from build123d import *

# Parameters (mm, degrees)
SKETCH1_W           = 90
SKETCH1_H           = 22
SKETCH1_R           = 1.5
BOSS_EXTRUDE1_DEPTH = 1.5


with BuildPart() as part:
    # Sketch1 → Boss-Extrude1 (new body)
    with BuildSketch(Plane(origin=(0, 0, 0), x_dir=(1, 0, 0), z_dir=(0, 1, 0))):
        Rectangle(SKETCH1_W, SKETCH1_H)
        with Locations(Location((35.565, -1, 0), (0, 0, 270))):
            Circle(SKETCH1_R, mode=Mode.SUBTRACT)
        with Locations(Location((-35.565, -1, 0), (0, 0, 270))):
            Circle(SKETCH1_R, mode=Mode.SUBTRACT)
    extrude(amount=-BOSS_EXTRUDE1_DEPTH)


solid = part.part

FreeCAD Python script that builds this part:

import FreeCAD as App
import Part
import Sketcher


def add_polygon(sketch, points):
    """Adds a closed chain of lines whose ends are joined by coincident constraints."""
    first, n = sketch.GeometryCount, len(points)
    for a, b in zip(points, points[1:] + points[:1]):
        sketch.addGeometry(Part.LineSegment(App.Vector(*a, 0), App.Vector(*b, 0)), False)
    for i in range(n):
        sketch.addConstraint(Sketcher.Constraint("Coincident", first + i, 2, first + (i + 1) % n, 1))

doc = App.newDocument("Part")
body = doc.addObject("PartDesign::Body", "Body")

sketch1 = body.newObject("Sketcher::SketchObject", "Sketch")
sketch1.AttachmentSupport = (doc.getObject("XZ_Plane"), [""])
sketch1.MapMode = "FlatFace"
add_polygon(sketch1, [(-45, -11), (-45, 11), (45, 11), (45, -11)])
sketch1.addGeometry(Part.Circle(App.Vector(-35.6, 1, 0), App.Vector(0, 0, 1), 1.5), False)
sketch1.addGeometry(Part.Circle(App.Vector(35.6, 1, 0), App.Vector(0, 0, 1), 1.5), False)
sketch1.addConstraint(Sketcher.Constraint("Vertical", 0))
sketch1.addConstraint(Sketcher.Constraint("Horizontal", 1))
sketch1.addConstraint(Sketcher.Constraint("Vertical", 2))
sketch1.addConstraint(Sketcher.Constraint("Horizontal", 3))
sketch1.addConstraint(Sketcher.Constraint("Equal", 4, 5))
sketch1.addConstraint(Sketcher.Constraint("Symmetric", 0, 2, 2, 2, -1, 1))
sketch1.addConstraint(Sketcher.Constraint("Symmetric", 4, 3, 5, 3, -2))
sketch1.addConstraint(Sketcher.Constraint("Diameter", 4, 3.0))
sketch1.addConstraint(Sketcher.Constraint("DistanceX", 1, 1, 1, 2, 90.0))
sketch1.addConstraint(Sketcher.Constraint("DistanceY", 0, 1, 0, 2, 22.0))
sketch1.addConstraint(Sketcher.Constraint("DistanceY", -1, 1, 4, 3, 1.0))
sketch1.addConstraint(Sketcher.Constraint("DistanceX", 4, 3, 5, 3, 71.13))
pad1 = body.newObject("PartDesign::Pad", "Pad")
pad1.Profile = sketch1
pad1.Length = 1.5

doc.recompute()
